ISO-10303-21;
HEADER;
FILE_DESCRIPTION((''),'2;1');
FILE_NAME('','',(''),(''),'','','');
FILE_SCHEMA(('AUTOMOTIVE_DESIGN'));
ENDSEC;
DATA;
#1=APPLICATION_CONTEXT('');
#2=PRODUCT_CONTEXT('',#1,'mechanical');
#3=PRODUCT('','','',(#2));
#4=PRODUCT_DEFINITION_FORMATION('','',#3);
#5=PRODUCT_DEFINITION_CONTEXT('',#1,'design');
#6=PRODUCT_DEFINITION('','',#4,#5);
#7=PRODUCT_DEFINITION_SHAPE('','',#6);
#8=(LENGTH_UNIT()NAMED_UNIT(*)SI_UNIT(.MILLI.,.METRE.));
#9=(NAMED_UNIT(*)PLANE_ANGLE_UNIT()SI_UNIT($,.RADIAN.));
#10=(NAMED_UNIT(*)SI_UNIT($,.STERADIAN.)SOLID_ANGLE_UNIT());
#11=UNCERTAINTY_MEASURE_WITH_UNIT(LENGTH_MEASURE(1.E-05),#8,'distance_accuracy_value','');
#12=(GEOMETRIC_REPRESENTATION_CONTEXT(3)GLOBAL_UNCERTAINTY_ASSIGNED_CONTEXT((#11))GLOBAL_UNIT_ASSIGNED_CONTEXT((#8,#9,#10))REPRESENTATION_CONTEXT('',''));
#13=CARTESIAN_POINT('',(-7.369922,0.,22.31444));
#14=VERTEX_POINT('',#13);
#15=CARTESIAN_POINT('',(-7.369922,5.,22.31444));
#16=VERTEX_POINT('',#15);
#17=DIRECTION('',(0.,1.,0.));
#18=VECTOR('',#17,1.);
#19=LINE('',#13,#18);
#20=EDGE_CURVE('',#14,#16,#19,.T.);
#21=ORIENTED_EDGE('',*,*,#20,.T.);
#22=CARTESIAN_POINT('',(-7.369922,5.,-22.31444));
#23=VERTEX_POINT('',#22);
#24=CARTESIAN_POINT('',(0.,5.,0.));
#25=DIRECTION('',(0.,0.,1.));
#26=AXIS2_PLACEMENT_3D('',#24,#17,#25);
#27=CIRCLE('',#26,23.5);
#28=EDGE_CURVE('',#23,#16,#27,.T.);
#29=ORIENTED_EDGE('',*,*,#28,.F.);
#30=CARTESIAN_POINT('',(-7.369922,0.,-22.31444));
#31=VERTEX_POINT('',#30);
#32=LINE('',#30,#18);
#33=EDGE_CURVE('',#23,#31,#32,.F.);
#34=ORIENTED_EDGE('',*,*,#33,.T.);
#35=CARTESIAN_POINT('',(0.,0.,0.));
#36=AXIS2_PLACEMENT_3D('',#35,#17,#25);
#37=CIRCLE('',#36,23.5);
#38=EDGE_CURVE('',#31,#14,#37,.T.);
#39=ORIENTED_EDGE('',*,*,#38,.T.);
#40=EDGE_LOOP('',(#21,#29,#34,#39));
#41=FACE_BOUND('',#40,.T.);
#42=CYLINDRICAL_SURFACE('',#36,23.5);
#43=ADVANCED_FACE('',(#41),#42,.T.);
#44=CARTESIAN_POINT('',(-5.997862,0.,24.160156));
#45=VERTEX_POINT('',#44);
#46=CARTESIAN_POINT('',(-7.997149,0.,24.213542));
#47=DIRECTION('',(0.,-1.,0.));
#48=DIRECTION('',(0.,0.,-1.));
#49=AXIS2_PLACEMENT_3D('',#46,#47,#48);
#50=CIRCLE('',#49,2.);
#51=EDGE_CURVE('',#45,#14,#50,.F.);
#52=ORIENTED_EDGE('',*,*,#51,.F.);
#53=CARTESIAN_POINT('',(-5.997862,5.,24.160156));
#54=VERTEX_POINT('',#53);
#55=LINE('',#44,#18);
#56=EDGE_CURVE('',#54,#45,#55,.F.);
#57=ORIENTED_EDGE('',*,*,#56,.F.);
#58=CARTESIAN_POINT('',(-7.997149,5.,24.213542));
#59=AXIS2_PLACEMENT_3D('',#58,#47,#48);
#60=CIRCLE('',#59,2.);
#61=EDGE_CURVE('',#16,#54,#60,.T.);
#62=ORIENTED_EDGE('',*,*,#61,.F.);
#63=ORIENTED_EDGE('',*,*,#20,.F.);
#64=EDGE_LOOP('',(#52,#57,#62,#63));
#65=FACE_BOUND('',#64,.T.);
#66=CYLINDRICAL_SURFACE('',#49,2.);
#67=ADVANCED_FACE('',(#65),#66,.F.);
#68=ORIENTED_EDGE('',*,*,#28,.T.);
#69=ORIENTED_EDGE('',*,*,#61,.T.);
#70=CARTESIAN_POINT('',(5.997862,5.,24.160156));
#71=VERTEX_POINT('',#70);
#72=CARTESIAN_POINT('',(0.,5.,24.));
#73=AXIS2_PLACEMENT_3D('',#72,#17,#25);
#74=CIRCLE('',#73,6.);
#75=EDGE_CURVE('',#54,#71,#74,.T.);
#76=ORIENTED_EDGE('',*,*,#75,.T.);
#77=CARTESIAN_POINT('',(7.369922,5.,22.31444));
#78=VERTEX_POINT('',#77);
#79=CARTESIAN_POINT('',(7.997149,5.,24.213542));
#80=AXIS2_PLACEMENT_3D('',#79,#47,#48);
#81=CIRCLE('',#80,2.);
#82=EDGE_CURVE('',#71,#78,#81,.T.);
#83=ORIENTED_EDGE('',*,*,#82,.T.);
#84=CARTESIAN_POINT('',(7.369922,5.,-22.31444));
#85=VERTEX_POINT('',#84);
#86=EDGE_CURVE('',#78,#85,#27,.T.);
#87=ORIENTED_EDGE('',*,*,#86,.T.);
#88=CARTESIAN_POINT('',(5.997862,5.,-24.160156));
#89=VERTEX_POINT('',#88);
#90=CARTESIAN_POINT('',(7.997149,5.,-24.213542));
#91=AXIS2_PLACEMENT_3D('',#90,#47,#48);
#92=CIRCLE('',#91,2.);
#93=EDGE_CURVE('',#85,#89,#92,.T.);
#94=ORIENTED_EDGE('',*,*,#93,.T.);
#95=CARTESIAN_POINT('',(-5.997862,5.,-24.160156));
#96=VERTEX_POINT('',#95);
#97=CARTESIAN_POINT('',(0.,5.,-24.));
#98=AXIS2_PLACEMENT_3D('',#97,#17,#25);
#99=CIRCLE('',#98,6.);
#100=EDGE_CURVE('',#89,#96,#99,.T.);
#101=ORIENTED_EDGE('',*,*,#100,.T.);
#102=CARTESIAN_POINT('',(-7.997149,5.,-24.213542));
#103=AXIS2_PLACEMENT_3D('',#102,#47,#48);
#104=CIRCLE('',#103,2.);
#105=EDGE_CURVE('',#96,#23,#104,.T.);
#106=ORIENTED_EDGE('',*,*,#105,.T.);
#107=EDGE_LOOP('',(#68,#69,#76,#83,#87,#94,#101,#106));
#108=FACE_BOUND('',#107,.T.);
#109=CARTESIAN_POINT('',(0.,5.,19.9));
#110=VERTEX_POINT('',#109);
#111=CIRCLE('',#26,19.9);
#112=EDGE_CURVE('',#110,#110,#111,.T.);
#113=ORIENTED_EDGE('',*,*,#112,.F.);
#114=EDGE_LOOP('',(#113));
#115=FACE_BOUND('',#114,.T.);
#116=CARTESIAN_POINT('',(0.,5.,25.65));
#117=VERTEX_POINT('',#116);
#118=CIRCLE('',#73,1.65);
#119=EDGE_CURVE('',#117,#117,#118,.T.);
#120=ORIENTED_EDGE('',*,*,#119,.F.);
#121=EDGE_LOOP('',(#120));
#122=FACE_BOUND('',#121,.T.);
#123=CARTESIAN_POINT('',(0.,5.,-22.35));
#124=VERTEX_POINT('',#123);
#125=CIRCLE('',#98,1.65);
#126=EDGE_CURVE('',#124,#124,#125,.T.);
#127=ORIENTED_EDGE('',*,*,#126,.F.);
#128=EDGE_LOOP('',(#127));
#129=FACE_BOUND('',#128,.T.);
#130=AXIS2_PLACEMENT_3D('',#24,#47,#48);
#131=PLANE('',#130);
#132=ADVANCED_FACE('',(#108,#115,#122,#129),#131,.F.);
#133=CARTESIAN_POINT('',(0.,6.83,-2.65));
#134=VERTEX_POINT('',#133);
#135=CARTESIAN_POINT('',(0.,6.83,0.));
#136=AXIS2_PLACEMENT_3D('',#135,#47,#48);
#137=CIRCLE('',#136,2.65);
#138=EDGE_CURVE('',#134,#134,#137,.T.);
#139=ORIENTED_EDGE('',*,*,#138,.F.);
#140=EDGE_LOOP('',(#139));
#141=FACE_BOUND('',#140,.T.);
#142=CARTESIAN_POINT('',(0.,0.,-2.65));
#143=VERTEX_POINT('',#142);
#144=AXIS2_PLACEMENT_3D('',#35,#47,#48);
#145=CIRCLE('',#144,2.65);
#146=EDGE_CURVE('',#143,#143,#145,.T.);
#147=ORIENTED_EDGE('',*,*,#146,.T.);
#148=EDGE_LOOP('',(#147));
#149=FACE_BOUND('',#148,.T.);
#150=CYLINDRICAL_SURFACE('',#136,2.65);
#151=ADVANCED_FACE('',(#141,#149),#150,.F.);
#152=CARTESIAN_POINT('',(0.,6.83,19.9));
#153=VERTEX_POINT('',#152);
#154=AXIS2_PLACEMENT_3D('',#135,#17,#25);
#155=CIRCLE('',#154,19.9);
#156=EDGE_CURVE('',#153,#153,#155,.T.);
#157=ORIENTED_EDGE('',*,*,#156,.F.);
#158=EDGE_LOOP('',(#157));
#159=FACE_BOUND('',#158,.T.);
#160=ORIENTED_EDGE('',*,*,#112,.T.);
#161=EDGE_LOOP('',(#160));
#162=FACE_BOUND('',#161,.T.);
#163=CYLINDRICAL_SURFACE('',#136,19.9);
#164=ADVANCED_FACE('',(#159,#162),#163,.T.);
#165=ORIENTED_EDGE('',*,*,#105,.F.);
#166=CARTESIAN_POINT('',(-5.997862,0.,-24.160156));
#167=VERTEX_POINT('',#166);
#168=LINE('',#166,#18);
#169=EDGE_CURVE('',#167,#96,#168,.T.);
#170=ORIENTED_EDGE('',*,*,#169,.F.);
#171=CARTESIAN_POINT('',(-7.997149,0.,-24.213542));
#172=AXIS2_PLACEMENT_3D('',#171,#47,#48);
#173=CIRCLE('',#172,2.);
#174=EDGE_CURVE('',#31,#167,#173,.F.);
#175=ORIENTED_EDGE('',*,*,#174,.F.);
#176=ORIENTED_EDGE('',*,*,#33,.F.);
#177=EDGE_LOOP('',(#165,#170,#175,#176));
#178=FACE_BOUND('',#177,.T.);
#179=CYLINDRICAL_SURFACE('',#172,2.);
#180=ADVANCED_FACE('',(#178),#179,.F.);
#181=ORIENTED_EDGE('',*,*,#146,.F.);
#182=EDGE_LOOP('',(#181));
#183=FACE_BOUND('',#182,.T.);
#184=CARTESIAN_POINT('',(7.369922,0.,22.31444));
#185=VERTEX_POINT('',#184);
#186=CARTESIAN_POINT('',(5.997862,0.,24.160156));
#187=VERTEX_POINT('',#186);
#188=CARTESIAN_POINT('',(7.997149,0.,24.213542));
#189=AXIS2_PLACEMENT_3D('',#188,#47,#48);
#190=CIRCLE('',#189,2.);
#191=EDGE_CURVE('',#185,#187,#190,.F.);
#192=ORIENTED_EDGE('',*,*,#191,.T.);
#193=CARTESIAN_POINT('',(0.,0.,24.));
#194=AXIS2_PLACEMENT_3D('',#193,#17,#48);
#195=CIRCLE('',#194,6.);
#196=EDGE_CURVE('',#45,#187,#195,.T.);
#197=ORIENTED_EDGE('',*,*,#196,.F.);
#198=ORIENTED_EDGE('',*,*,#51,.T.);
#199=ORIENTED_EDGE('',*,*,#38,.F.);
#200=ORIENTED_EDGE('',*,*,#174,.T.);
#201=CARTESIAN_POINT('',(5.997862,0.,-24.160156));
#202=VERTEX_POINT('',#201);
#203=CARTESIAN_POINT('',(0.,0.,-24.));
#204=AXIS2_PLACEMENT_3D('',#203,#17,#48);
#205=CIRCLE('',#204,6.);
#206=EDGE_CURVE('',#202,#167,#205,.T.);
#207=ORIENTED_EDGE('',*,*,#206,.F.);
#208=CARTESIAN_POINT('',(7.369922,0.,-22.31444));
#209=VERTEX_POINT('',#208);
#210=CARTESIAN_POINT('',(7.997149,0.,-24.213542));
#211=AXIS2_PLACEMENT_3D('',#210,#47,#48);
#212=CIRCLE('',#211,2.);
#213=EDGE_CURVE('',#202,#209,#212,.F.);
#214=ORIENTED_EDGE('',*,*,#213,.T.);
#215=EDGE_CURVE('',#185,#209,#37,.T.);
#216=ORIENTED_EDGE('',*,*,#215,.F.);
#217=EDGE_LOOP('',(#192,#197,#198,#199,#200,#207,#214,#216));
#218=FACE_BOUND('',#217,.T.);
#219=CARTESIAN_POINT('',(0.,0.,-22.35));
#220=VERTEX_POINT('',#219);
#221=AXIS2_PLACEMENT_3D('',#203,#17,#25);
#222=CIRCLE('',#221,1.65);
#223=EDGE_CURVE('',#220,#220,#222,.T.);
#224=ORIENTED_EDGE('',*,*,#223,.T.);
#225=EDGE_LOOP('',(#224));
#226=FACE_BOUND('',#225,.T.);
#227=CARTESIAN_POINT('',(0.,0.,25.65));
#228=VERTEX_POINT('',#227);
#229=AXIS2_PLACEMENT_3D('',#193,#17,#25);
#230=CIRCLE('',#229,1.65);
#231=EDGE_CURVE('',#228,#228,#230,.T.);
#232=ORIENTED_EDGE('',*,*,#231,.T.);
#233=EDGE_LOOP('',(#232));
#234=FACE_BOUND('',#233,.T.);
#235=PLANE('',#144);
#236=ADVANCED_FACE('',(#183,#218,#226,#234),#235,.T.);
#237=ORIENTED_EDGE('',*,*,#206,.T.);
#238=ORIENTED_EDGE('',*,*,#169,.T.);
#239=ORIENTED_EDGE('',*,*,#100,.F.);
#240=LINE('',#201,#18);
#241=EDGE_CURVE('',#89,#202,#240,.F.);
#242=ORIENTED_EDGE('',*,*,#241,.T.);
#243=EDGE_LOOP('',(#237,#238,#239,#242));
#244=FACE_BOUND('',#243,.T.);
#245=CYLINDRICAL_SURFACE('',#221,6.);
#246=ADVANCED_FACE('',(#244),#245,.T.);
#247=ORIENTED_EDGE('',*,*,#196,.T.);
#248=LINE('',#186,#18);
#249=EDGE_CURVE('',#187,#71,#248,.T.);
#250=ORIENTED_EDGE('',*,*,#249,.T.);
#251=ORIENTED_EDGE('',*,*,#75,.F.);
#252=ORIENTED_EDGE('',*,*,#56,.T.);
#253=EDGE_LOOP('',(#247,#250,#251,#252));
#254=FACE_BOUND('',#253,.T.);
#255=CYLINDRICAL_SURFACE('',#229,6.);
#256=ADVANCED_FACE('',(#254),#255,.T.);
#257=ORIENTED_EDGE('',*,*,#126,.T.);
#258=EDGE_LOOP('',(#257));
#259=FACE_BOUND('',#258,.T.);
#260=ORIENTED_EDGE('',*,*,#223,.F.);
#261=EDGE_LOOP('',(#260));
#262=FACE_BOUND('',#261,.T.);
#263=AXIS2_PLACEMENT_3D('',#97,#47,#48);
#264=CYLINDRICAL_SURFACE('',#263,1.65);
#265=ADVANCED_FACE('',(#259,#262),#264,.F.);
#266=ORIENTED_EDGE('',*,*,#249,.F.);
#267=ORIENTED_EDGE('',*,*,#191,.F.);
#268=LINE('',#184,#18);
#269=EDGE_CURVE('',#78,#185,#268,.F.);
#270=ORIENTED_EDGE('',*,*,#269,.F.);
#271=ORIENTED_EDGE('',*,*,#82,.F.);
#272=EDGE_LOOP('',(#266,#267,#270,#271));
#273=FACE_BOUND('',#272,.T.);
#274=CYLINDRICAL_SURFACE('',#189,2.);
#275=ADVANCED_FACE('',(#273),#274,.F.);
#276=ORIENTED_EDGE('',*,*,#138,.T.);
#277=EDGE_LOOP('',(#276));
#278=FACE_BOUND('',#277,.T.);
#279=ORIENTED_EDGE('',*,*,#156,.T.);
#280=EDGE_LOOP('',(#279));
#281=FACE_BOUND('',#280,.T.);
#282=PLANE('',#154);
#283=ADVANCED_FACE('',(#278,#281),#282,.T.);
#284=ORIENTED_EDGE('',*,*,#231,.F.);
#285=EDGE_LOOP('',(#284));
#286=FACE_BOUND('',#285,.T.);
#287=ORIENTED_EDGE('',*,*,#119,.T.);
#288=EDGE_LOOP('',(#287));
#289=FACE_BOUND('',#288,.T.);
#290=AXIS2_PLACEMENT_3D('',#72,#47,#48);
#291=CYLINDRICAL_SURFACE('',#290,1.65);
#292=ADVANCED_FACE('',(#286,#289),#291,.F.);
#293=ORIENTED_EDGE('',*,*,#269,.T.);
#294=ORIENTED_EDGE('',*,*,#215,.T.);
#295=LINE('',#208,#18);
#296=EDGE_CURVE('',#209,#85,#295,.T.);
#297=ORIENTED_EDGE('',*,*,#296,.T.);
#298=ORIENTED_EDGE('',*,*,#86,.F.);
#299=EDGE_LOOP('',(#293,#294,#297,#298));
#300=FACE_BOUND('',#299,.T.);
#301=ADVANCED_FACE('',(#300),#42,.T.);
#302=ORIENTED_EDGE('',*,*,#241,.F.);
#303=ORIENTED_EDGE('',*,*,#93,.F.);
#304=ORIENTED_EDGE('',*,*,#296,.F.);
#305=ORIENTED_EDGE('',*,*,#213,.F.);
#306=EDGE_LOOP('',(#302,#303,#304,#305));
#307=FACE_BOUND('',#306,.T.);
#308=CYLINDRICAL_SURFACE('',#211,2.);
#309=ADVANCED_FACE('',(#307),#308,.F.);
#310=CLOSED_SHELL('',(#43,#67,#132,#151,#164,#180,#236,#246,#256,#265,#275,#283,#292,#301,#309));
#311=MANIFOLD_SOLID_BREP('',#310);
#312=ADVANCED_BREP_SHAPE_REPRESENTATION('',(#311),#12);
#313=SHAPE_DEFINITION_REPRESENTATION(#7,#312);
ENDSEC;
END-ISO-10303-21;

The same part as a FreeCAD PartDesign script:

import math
import FreeCAD as App
import Part
import Sketcher

V = App.Vector


def edges_at(feature, points):
    """Names of the edges that pass closest to the given points."""
    edges = feature.Shape.Edges
    near = lambda p: min(range(len(edges)), key=lambda i: edges[i].distToShape(Part.Vertex(*p))[0])
    return sorted({f"Edge{near(p) + 1}" for p in points})


def add_polygon(sketch, points):
    """Adds a closed chain of lines whose ends are joined by coincident constraints."""
    first, n = sketch.GeometryCount, len(points)
    for a, b in zip(points, points[1:] + points[:1]):
        sketch.addGeometry(Part.LineSegment(App.Vector(*a, 0), App.Vector(*b, 0)), False)
    for i in range(n):
        sketch.addConstraint(Sketcher.Constraint("Coincident", first + i, 2, first + (i + 1) % n, 1))

doc = App.newDocument("Part")
body = doc.addObject("PartDesign::Body", "Body")

# Sketch on XZ plane
sketch1 = body.newObject("Sketcher::SketchObject", "Sketch")
sketch1.AttachmentSupport = (doc.getObject("XZ_Plane"), [""])
sketch1.MapMode = "FlatFace"
add_polygon(sketch1, [(-30, -30), (-30, 30), (30, 30), (30, -30)])  # lines 0-3
sketch1.addGeometry(Part.Circle(V(0, 24, 0), V(0, 0, 1), 1.6), False)  # 4
sketch1.addGeometry(Part.Circle(V(0, -24, 0), V(0, 0, 1), 1.6), False)  # 5
sketch1.addConstraint(Sketcher.Constraint("Vertical", 0))
sketch1.addConstraint(Sketcher.Constraint("Horizontal", 1))
sketch1.addConstraint(Sketcher.Constraint("Vertical", 2))
sketch1.addConstraint(Sketcher.Constraint("Horizontal", 3))
sketch1.addConstraint(Sketcher.Constraint("Equal", 4, 5))
sketch1.addConstraint(Sketcher.Constraint("Symmetric", 4, 3, 5, 3, -1, 1))
sketch1.addConstraint(Sketcher.Constraint("Symmetric", 0, 2, 2, 2, -1, 1))
sketch1.addConstraint(Sketcher.Constraint("PointOnObject", 4, 3, -2))
sketch1.addConstraint(Sketcher.Constraint("Equal", 3, 0))
sketch1.addConstraint(Sketcher.Constraint("Diameter", 4, 3.3))
sketch1.addConstraint(Sketcher.Constraint("DistanceX", 1, 1, 1, 2, 60.0))
sketch1.addConstraint(Sketcher.Constraint("DistanceY", -1, 1, 4, 3, 24.0))
pad1 = body.newObject("PartDesign::Pad", "Pad")
pad1.Profile = sketch1
pad1.Length = 5
pad1.Reversed = True

# Sketch on XZ plane
sketch2 = body.newObject("Sketcher::SketchObject", "Sketch001")
sketch2.AttachmentSupport = (doc.getObject("XZ_Plane"), [""])
sketch2.MapMode = "FlatFace"
sketch2.AttachmentOffset = App.Placement(V(0, 0, -5), App.Rotation())
sketch2.addGeometry(Part.Circle(V(0, 0, 0), V(0, 0, 1), 20), False)
sketch2.addConstraint(Sketcher.Constraint("Coincident", 0, 3, -1, 1))
sketch2.addConstraint(Sketcher.Constraint("Diameter", 0, 39.8))
pad2 = body.newObject("PartDesign::Pad", "Pad001")
pad2.Profile = sketch2
pad2.Length = 1.83
pad2.Reversed = True

# Sketch on XZ plane
sketch3 = body.newObject("Sketcher::SketchObject", "Sketch002")
sketch3.AttachmentSupport = (doc.getObject("XZ_Plane"), [""])
sketch3.MapMode = "FlatFace"
sketch3.AttachmentOffset = App.Placement(V(0, 0, -5), App.Rotation())
add_polygon(sketch3, [(-40, -40), (-40, 40), (40, 40), (40, -40)])  # lines 0-3
sketch3.addGeometry(Part.ArcOfCircle(Part.Circle(V(0, 0, 0), V(0, 0, 1), 24), math.radians(-76), math.radians(76)), False)  # 4
sketch3.addGeometry(Part.ArcOfCircle(Part.Circle(V(0, 24, 0), V(0, 0, 1), 6), math.radians(-12), math.radians(90)), False)  # 5
sketch3.addGeometry(Part.ArcOfCircle(Part.Circle(V(0, 24, 0), V(0, 0, 1), 6), math.radians(90), math.radians(192)), False)  # 6
sketch3.addGeometry(Part.ArcOfCircle(Part.Circle(V(0, 0, 0), V(0, 0, 1), 24), math.radians(104), math.radians(256)), False)  # 7
sketch3.addGeometry(Part.ArcOfCircle(Part.Circle(V(0, -24, 0), V(0, 0, 1), 6), math.radians(168), math.radians(270)), False)  # 8
sketch3.addGeometry(Part.ArcOfCircle(Part.Circle(V(0, -24, 0), V(0, 0, 1), 6), math.radians(-90), math.radians(12)), False)  # 9
sketch3.addConstraint(Sketcher.Constraint("Coincident", 4, 2, 5, 1))
sketch3.addConstraint(Sketcher.Constraint("Tangent", 5, 2, 6, 1))
sketch3.addConstraint(Sketcher.Constraint("Coincident", 6, 2, 7, 1))
sketch3.addConstraint(Sketcher.Constraint("Coincident", 7, 2, 8, 1))
sketch3.addConstraint(Sketcher.Constraint("Tangent", 8, 2, 9, 1))
sketch3.addConstraint(Sketcher.Constraint("Coincident", 9, 2, 4, 1))
sketch3.addConstraint(Sketcher.Constraint("Vertical", 0))
sketch3.addConstraint(Sketcher.Constraint("Horizontal", 1))
sketch3.addConstraint(Sketcher.Constraint("Vertical", 2))
sketch3.addConstraint(Sketcher.Constraint("Horizontal", 3))
sketch3.addConstraint(Sketcher.Constraint("Coincident", 4, 3, -1, 1))
sketch3.addConstraint(Sketcher.Constraint("Coincident", 7, 3, -1, 1))
sketch3.addConstraint(Sketcher.Constraint("Equal", 5, 6))
sketch3.addConstraint(Sketcher.Constraint("Equal", 4, 7))
sketch3.addConstraint(Sketcher.Constraint("Equal", 6, 8))
sketch3.addConstraint(Sketcher.Constraint("Equal", 8, 9))
sketch3.addConstraint(Sketcher.Constraint("Symmetric", 5, 3, 8, 3, -1, 1))
sketch3.addConstraint(Sketcher.Constraint("Symmetric", 0, 2, 2, 2, -1, 1))
sketch3.addConstraint(Sketcher.Constraint("PointOnObject", 5, 3, -2))
sketch3.addConstraint(Sketcher.Constraint("PointOnObject", 5, 2, -2))
sketch3.addConstraint(Sketcher.Constraint("PointOnObject", 8, 2, -2))
sketch3.addConstraint(Sketcher.Constraint("Equal", 3, 0))
sketch3.addConstraint(Sketcher.Constraint("Radius", 5, 6.0))
sketch3.addConstraint(Sketcher.Constraint("Radius", 4, 23.5))
sketch3.addConstraint(Sketcher.Constraint("DistanceY", -1, 1, 5, 3, 24.0))
sketch3.addConstraint(Sketcher.Constraint("DistanceX", 1, 1, 1, 2, 79.026))
pocket1 = body.newObject("PartDesign::Pocket", "Pocket")
pocket1.Profile = sketch3
pocket1.Type = "ThroughAll"
pocket1.Reversed = True

# Sketch on XZ plane
sketch4 = body.newObject("Sketcher::SketchObject", "Sketch003")
sketch4.AttachmentSupport = (doc.getObject("XZ_Plane"), [""])
sketch4.MapMode = "FlatFace"
sketch4.addGeometry(Part.Circle(V(0, 0, 0), V(0, 0, 1), 2.6), False)
sketch4.addConstraint(Sketcher.Constraint("Coincident", 0, 3, -1, 1))
sketch4.addConstraint(Sketcher.Constraint("Diameter", 0, 5.3))
pocket2 = body.newObject("PartDesign::Pocket", "Pocket001")
pocket2.Profile = sketch4
pocket2.Type = "ThroughAll"
doc.recompute()

fillet = body.newObject("PartDesign::Fillet", "Fillet")
fillet.Base = (pocket2, edges_at(pocket2, [
    (5.869, 2.5, -22.755),
    (-5.869, 2.5, 22.755),
    (5.869, 2.5, 22.755),
    (-5.869, 2.5, -22.755),
]))
fillet.Radius = 2

doc.recompute()
